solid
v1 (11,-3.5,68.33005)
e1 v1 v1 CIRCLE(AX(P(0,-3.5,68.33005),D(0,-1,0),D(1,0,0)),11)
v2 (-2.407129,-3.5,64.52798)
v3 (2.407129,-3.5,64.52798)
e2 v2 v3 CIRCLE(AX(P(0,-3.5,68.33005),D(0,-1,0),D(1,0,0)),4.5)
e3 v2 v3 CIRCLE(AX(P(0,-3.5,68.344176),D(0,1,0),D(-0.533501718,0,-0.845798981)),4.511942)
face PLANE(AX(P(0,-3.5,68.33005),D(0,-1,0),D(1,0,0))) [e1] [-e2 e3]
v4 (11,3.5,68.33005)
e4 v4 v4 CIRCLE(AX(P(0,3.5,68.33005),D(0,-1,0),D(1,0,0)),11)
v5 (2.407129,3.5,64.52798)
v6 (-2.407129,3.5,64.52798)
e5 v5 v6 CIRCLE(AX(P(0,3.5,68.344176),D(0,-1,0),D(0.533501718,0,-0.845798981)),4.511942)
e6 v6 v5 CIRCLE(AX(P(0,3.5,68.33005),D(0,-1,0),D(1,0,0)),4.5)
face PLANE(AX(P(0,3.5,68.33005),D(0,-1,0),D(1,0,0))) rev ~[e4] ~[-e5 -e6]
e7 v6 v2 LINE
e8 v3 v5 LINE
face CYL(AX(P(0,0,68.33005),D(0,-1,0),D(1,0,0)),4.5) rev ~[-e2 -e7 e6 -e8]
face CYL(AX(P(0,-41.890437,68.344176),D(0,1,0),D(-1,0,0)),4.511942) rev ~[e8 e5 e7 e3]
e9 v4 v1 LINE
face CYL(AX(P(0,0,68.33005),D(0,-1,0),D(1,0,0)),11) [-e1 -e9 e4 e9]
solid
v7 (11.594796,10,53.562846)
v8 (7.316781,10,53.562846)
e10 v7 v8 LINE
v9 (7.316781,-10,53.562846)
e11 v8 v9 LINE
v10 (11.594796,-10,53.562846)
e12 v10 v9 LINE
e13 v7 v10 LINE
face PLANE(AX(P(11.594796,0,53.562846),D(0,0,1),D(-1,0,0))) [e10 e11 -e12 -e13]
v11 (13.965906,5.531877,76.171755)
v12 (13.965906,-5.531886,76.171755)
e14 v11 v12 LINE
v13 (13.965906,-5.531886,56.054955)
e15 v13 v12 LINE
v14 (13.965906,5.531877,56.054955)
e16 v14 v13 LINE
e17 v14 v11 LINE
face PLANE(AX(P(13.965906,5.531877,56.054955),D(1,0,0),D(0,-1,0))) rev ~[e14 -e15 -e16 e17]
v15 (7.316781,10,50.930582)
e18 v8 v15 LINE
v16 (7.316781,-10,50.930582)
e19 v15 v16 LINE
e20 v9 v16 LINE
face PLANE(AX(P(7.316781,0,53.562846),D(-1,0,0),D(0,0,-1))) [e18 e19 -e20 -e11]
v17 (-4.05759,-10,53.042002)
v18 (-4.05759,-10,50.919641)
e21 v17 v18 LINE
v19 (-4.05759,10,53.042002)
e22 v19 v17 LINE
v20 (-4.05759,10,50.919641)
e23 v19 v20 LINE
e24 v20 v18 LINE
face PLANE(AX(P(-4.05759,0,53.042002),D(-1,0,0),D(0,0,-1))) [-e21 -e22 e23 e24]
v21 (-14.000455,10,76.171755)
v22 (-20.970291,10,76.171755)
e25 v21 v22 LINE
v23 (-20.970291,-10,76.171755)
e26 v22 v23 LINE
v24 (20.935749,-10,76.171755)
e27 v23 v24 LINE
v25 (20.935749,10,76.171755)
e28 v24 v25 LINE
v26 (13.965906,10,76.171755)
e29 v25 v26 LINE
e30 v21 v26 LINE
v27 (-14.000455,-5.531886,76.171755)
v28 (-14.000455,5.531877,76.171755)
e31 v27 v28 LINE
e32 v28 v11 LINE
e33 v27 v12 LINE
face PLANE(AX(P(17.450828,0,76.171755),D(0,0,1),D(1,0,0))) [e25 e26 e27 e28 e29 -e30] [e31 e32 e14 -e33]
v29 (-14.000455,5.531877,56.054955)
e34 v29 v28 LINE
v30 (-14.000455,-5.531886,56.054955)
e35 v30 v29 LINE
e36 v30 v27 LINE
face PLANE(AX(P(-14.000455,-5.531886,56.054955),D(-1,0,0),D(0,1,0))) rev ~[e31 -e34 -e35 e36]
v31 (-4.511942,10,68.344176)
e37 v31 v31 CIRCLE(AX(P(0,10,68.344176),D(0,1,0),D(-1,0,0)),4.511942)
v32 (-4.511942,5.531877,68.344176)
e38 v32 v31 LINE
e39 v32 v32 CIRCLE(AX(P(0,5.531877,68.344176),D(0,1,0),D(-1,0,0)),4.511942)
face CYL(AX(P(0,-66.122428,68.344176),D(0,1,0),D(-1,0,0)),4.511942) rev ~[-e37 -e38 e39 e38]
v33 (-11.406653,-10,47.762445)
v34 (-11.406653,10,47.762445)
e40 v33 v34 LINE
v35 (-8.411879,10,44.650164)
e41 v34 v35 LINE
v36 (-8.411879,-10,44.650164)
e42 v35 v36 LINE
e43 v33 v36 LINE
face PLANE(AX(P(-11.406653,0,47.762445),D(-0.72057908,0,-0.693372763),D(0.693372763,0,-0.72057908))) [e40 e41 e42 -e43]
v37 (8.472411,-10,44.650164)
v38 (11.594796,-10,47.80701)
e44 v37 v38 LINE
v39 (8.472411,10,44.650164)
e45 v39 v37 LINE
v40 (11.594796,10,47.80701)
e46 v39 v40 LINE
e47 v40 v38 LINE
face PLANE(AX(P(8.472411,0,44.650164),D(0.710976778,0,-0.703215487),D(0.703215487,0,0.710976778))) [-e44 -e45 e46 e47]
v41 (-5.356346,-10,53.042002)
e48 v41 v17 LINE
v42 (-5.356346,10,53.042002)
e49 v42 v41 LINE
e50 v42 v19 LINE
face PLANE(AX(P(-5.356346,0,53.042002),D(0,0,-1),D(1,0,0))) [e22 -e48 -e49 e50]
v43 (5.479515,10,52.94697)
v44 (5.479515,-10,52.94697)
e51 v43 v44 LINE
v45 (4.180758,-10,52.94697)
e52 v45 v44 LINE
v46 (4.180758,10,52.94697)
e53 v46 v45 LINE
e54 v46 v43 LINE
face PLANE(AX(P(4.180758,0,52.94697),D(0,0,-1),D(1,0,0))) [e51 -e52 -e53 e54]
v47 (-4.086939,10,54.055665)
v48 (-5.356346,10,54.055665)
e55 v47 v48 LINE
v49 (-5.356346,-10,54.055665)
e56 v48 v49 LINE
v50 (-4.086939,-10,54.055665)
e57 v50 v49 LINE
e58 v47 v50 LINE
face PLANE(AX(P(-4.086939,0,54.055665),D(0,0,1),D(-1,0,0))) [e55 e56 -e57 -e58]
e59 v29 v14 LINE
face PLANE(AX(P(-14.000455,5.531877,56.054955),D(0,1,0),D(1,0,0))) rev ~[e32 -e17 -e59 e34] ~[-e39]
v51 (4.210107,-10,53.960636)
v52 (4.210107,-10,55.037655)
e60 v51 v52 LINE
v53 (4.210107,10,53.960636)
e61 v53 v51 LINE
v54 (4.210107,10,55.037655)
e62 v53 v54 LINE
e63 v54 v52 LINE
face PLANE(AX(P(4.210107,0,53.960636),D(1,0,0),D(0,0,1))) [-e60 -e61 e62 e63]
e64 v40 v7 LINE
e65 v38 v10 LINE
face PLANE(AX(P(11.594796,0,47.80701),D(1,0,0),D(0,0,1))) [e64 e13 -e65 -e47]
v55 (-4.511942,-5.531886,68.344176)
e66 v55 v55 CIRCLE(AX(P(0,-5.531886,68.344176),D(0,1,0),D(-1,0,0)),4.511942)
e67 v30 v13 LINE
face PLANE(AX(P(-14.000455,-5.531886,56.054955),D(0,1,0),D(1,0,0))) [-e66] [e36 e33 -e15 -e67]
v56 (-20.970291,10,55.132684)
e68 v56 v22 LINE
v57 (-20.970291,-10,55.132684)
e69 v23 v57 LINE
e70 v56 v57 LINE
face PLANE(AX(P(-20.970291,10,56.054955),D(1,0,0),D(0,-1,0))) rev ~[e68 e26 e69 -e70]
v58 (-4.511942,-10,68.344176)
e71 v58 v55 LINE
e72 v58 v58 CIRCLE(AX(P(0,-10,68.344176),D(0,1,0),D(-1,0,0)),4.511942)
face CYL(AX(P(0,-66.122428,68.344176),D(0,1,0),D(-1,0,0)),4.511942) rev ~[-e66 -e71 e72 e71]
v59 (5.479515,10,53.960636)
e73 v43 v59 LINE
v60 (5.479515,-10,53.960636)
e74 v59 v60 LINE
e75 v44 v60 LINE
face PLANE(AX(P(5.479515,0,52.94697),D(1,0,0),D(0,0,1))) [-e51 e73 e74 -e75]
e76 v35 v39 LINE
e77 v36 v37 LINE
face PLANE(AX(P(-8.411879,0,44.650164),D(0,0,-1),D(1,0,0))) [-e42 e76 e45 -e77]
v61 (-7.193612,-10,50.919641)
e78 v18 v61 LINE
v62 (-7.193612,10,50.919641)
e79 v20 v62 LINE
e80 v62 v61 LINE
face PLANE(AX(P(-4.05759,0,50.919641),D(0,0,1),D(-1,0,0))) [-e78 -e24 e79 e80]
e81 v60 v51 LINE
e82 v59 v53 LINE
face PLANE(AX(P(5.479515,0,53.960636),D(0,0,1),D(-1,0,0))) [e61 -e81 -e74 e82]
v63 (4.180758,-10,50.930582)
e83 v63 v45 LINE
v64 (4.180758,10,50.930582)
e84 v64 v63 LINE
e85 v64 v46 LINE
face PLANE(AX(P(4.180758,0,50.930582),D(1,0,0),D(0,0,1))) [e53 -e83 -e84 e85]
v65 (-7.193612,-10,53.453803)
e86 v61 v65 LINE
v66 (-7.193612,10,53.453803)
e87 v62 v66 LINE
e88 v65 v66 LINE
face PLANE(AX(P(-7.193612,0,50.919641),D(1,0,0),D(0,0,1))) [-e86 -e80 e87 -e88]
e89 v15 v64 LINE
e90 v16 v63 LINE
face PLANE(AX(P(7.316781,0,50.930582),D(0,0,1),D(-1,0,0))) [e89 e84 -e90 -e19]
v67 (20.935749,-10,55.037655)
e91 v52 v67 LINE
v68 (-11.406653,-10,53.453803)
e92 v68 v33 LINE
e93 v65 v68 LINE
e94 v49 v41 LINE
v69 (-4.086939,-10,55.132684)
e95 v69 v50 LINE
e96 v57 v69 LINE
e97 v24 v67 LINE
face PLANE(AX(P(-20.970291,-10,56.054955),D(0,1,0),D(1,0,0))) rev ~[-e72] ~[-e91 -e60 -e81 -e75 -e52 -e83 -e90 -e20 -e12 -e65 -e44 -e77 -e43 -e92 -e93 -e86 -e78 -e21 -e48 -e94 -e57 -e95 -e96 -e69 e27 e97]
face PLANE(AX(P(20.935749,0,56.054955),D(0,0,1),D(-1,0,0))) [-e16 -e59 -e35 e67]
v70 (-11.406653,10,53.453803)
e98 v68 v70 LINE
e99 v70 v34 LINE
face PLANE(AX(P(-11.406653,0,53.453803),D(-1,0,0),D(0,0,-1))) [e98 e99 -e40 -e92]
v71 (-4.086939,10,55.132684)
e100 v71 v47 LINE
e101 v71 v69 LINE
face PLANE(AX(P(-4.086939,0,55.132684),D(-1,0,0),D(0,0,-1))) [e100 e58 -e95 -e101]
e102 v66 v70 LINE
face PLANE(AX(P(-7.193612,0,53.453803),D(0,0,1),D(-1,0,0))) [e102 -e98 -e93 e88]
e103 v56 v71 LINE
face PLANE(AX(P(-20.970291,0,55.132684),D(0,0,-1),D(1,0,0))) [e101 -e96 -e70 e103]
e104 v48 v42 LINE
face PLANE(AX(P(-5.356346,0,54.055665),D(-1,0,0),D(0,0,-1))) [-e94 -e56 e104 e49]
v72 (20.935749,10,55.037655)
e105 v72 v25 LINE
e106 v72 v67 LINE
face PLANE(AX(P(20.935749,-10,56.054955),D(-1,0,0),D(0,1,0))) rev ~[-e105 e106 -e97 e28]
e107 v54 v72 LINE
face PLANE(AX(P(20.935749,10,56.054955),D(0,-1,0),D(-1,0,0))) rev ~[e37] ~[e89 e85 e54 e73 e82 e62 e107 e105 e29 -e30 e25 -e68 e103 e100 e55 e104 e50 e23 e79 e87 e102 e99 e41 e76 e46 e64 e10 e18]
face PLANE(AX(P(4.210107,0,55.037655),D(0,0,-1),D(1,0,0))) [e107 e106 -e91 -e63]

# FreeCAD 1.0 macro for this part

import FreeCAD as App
import Part
import Sketcher

V = App.Vector


def add_polygon(sketch, points):
    """Adds a closed chain of lines whose ends are joined by coincident constraints."""
    first, n = sketch.GeometryCount, len(points)
    for a, b in zip(points, points[1:] + points[:1]):
        sketch.addGeometry(Part.LineSegment(App.Vector(*a, 0), App.Vector(*b, 0)), False)
    for i in range(n):
        sketch.addConstraint(Sketcher.Constraint("Coincident", first + i, 2, first + (i + 1) % n, 1))

doc = App.newDocument("Part")
body = doc.addObject("PartDesign::Body", "Body")

# Sketch on XZ plane
sketch1 = body.newObject("Sketcher::SketchObject", "Sketch")
sketch1.AttachmentSupport = (doc.getObject("XZ_Plane"), [""])
sketch1.MapMode = "FlatFace"
sketch1.addGeometry(Part.Circle(V(0, 68.3, 0), V(0, 0, 1), 11), False)
sketch1.addGeometry(Part.Circle(V(0, 68.3, 0), V(0, 0, 1), 4.5), False)
sketch1.addConstraint(Sketcher.Constraint("Coincident", 1, 3, 0, 3))
sketch1.addConstraint(Sketcher.Constraint("PointOnObject", 0, 3, -2))
sketch1.addConstraint(Sketcher.Constraint("Diameter", 0, 22.0))
sketch1.addConstraint(Sketcher.Constraint("Diameter", 1, 9.0))
sketch1.addConstraint(Sketcher.Constraint("DistanceY", -1, 1, 0, 3, 68.33005))
pad1 = body.newObject("PartDesign::Pad", "Pad")
pad1.Profile = sketch1
pad1.Length = 3.5

# Sketch on XZ plane
sketch2 = body.newObject("Sketcher::SketchObject", "Sketch001")
sketch2.AttachmentSupport = (doc.getObject("XZ_Plane"), [""])
sketch2.MapMode = "FlatFace"
sketch2.addGeometry(Part.Circle(V(0, 68.3, 0), V(0, 0, 1), 11), False)
sketch2.addGeometry(Part.Circle(V(0, 68.3, 0), V(0, 0, 1), 4.5), False)
sketch2.addConstraint(Sketcher.Constraint("Coincident", 1, 3, 0, 3))
sketch2.addConstraint(Sketcher.Constraint("PointOnObject", 0, 3, -2))
sketch2.addConstraint(Sketcher.Constraint("Diameter", 0, 22.0))
sketch2.addConstraint(Sketcher.Constraint("Diameter", 1, 9.0))
sketch2.addConstraint(Sketcher.Constraint("DistanceY", -1, 1, 0, 3, 68.33005))
pad2 = body.newObject("PartDesign::Pad", "Pad001")
pad2.Profile = sketch2
pad2.Length = 3.5
pad2.Reversed = True

# Sketch on XZ plane
sketch3 = body.newObject("Sketcher::SketchObject", "Sketch002")
sketch3.AttachmentSupport = (doc.getObject("XZ_Plane"), [""])
sketch3.MapMode = "FlatFace"
sketch3.AttachmentOffset = App.Placement(V(0, 0, 10), App.Rotation())
sketch3.addGeometry(Part.Circle(V(0, 68.3, 0), V(0, 0, 1), 4.5), False)
sketch3.addConstraint(Sketcher.Constraint("PointOnObject", 0, 3, -2))
sketch3.addConstraint(Sketcher.Constraint("Diameter", 0, 9.023883))
sketch3.addConstraint(Sketcher.Constraint("DistanceY", -1, 1, 0, 3, 68.344176))
doc.recompute()
hole = body.newObject("PartDesign::Hole", "Hole")
hole.Profile = sketch3
hole.ThreadType = "None"
hole.Diameter = 9.023883
hole.DepthType = "ThroughAll"
body2 = doc.addObject("PartDesign::Body", "Body001")

# Sketch on XZ plane
sketch4 = body2.newObject("Sketcher::SketchObject", "Sketch003")
sketch4.AttachmentSupport = (doc.getObject("XZ_Plane001"), [""])
sketch4.MapMode = "FlatFace"
add_polygon(sketch4, [(-11.4, 47.8), (-8.4, 44.7), (8.5, 44.7), (11.6, 47.8), (11.6, 53.6), (7.3, 53.6), (7.3, 50.9), (4.2, 50.9), (4.2, 52.9), (5.5, 52.9), (5.5, 54), (4.2, 54), (4.2, 55), (20.9, 55), (20.9, 56.1), (-21, 56.1), (-21, 55.1), (-4.1, 55.1), (-4.1, 54.1), (-5.4, 54.1), (-5.4, 53), (-4.1, 53), (-4.1, 50.9), (-7.2, 50.9), (-7.2, 53.5), (-11.4, 53.5)])  # lines 0-25
sketch4.addConstraint(Sketcher.Constraint("Horizontal", 1))
sketch4.addConstraint(Sketcher.Constraint("Vertical", 3))
sketch4.addConstraint(Sketcher.Constraint("Horizontal", 4))
sketch4.addConstraint(Sketcher.Constraint("Vertical", 5))
sketch4.addConstraint(Sketcher.Constraint("Horizontal", 6))
sketch4.addConstraint(Sketcher.Constraint("Vertical", 7))
sketch4.addConstraint(Sketcher.Constraint("Horizontal", 8))
sketch4.addConstraint(Sketcher.Constraint("Vertical", 9))
sketch4.addConstraint(Sketcher.Constraint("Horizontal", 10))
sketch4.addConstraint(Sketcher.Constraint("Vertical", 11))
sketch4.addConstraint(Sketcher.Constraint("Horizontal", 12))
sketch4.addConstraint(Sketcher.Constraint("Vertical", 13))
sketch4.addConstraint(Sketcher.Constraint("Horizontal", 14))
sketch4.addConstraint(Sketcher.Constraint("Vertical", 15))
sketch4.addConstraint(Sketcher.Constraint("Horizontal", 16))
sketch4.addConstraint(Sketcher.Constraint("Vertical", 17))
sketch4.addConstraint(Sketcher.Constraint("Horizontal", 18))
sketch4.addConstraint(Sketcher.Constraint("Vertical", 19))
sketch4.addConstraint(Sketcher.Constraint("Horizontal", 20))
sketch4.addConstraint(Sketcher.Constraint("Vertical", 21))
sketch4.addConstraint(Sketcher.Constraint("Horizontal", 22))
sketch4.addConstraint(Sketcher.Constraint("Vertical", 23))
sketch4.addConstraint(Sketcher.Constraint("Horizontal", 24))
sketch4.addConstraint(Sketcher.Constraint("Vertical", 25))
sketch4.addConstraint(Sketcher.Constraint("Equal", 10, 18))
sketch4.addConstraint(Sketcher.Constraint("Equal", 8, 20))
sketch4.addConstraint(Sketcher.Constraint("Equal", 6, 22))
sketch4.addConstraint(Sketcher.Constraint("Equal", 11, 17))
sketch4.addConstraint(Sketcher.Constraint("DistanceY", 13, 1, 13, 2, 1.0173))
sketch4.addConstraint(Sketcher.Constraint("DistanceX", 1, 1, 1, 2, 16.88429))
sketch4.addConstraint(Sketcher.Constraint("DistanceX", 14, 2, 14, 1, 41.90604))
sketch4.addConstraint(Sketcher.Constraint("DistanceX", 24, 2, 24, 1, 4.213041))
sketch4.addConstraint(Sketcher.Constraint("DistanceY", 11, 1, 11, 2, 1.077019))
sketch4.addConstraint(Sketcher.Constraint("DistanceY", 15, 2, 15, 1, 0.922271))
sketch4.addConstraint(Sketcher.Constraint("DistanceY", 21, 2, 21, 1, 2.122361))
sketch4.addConstraint(Sketcher.Constraint("DistanceX", 14, 2, 11, 2, 25.180398))
sketch4.addConstraint(Sketcher.Constraint("DistanceY", 6, 2, 16, 2, 4.202102))
sketch4.addConstraint(Sketcher.Constraint("DistanceY", 19, 2, 23, 2, 0.411801))
sketch4.addConstraint(Sketcher.Constraint("Distance", 0, 4.31914))
sketch4.addConstraint(Sketcher.Constraint("DistanceX", 4, 2, 4, 1, 4.278015))
sketch4.addConstraint(Sketcher.Constraint("DistanceX", 6, 2, 6, 1, 3.136023))
sketch4.addConstraint(Sketcher.Constraint("DistanceX", 8, 1, 8, 2, 1.298757))
sketch4.addConstraint(Sketcher.Constraint("DistanceX", 10, 2, 10, 1, 1.269408))
sketch4.addConstraint(Sketcher.Constraint("DistanceX", 16, 1, 16, 2, 16.883352))
sketch4.addConstraint(Sketcher.Constraint("DistanceY", 3, 1, 3, 2, 5.755836))
sketch4.addConstraint(Sketcher.Constraint("DistanceY", 5, 2, 5, 1, 2.632264))
sketch4.addConstraint(Sketcher.Constraint("DistanceY", 7, 1, 7, 2, 2.016388))
sketch4.addConstraint(Sketcher.Constraint("DistanceY", 19, 2, 19, 1, 1.013663))
sketch4.addConstraint(Sketcher.Constraint("DistanceY", 25, 2, 25, 1, 5.691358))
sketch4.addConstraint(Sketcher.Constraint("DistanceX", 0, 2, -1, 1, 8.411879))
sketch4.addConstraint(Sketcher.Constraint("DistanceY", -1, 1, 2, 2, 47.80701))
sketch4.addConstraint(Sketcher.Constraint("DistanceX", -1, 1, 4, 2, 7.316781))
pad3 = body2.newObject("PartDesign::Pad", "Pad002")
pad3.Profile = sketch4
pad3.Length = 10

# Sketch on XZ plane
sketch5 = body2.newObject("Sketcher::SketchObject", "Sketch004")
sketch5.AttachmentSupport = (doc.getObject("XZ_Plane001"), [""])
sketch5.MapMode = "FlatFace"
add_polygon(sketch5, [(-11.4, 47.8), (-8.4, 44.7), (8.5, 44.7), (11.6, 47.8), (11.6, 53.6), (7.3, 53.6), (7.3, 50.9), (4.2, 50.9), (4.2, 52.9), (5.5, 52.9), (5.5, 54), (4.2, 54), (4.2, 55), (20.9, 55), (20.9, 56.1), (-21, 56.1), (-21, 55.1), (-4.1, 55.1), (-4.1, 54.1), (-5.4, 54.1), (-5.4, 53), (-4.1, 53), (-4.1, 50.9), (-7.2, 50.9), (-7.2, 53.5), (-11.4, 53.5)])  # lines 0-25
sketch5.addConstraint(Sketcher.Constraint("Horizontal", 1))
sketch5.addConstraint(Sketcher.Constraint("Vertical", 3))
sketch5.addConstraint(Sketcher.Constraint("Horizontal", 4))
sketch5.addConstraint(Sketcher.Constraint("Vertical", 5))
sketch5.addConstraint(Sketcher.Constraint("Horizontal", 6))
sketch5.addConstraint(Sketcher.Constraint("Vertical", 7))
sketch5.addConstraint(Sketcher.Constraint("Horizontal", 8))
sketch5.addConstraint(Sketcher.Constraint("Vertical", 9))
sketch5.addConstraint(Sketcher.Constraint("Horizontal", 10))
sketch5.addConstraint(Sketcher.Constraint("Vertical", 11))
sketch5.addConstraint(Sketcher.Constraint("Horizontal", 12))
sketch5.addConstraint(Sketcher.Constraint("Vertical", 13))
sketch5.addConstraint(Sketcher.Constraint("Horizontal", 14))
sketch5.addConstraint(Sketcher.Constraint("Vertical", 15))
sketch5.addConstraint(Sketcher.Constraint("Horizontal", 16))
sketch5.addConstraint(Sketcher.Constraint("Vertical", 17))
sketch5.addConstraint(Sketcher.Constraint("Horizontal", 18))
sketch5.addConstraint(Sketcher.Constraint("Vertical", 19))
sketch5.addConstraint(Sketcher.Constraint("Horizontal", 20))
sketch5.addConstraint(Sketcher.Constraint("Vertical", 21))
sketch5.addConstraint(Sketcher.Constraint("Horizontal", 22))
sketch5.addConstraint(Sketcher.Constraint("Vertical", 23))
sketch5.addConstraint(Sketcher.Constraint("Horizontal", 24))
sketch5.addConstraint(Sketcher.Constraint("Vertical", 25))
sketch5.addConstraint(Sketcher.Constraint("Equal", 10, 18))
sketch5.addConstraint(Sketcher.Constraint("Equal", 8, 20))
sketch5.addConstraint(Sketcher.Constraint("Equal", 6, 22))
sketch5.addConstraint(Sketcher.Constraint("Equal", 11, 17))
sketch5.addConstraint(Sketcher.Constraint("DistanceY", 13, 1, 13, 2, 1.0173))
sketch5.addConstraint(Sketcher.Constraint("DistanceX", 1, 1, 1, 2, 16.88429))
sketch5.addConstraint(Sketcher.Constraint("DistanceX", 14, 2, 14, 1, 41.90604))
sketch5.addConstraint(Sketcher.Constraint("DistanceX", 24, 2, 24, 1, 4.213041))
sketch5.addConstraint(Sketcher.Constraint("DistanceY", 11, 1, 11, 2, 1.077019))
sketch5.addConstraint(Sketcher.Constraint("DistanceY", 15, 2, 15, 1, 0.922271))
sketch5.addConstraint(Sketcher.Constraint("DistanceY", 21, 2, 21, 1, 2.122361))
sketch5.addConstraint(Sketcher.Constraint("DistanceX", 14, 2, 11, 2, 25.180398))
sketch5.addConstraint(Sketcher.Constraint("DistanceY", 6, 2, 16, 2, 4.202102))
sketch5.addConstraint(Sketcher.Constraint("DistanceY", 19, 2, 23, 2, 0.411801))
sketch5.addConstraint(Sketcher.Constraint("Distance", 0, 4.31914))
sketch5.addConstraint(Sketcher.Constraint("DistanceX", 4, 2, 4, 1, 4.278015))
sketch5.addConstraint(Sketcher.Constraint("DistanceX", 6, 2, 6, 1, 3.136023))
sketch5.addConstraint(Sketcher.Constraint("DistanceX", 8, 1, 8, 2, 1.298757))
sketch5.addConstraint(Sketcher.Constraint("DistanceX", 10, 2, 10, 1, 1.269408))
sketch5.addConstraint(Sketcher.Constraint("DistanceX", 16, 1, 16, 2, 16.883352))
sketch5.addConstraint(Sketcher.Constraint("DistanceY", 3, 1, 3, 2, 5.755836))
sketch5.addConstraint(Sketcher.Constraint("DistanceY", 5, 2, 5, 1, 2.632264))
sketch5.addConstraint(Sketcher.Constraint("DistanceY", 7, 1, 7, 2, 2.016388))
sketch5.addConstraint(Sketcher.Constraint("DistanceY", 19, 2, 19, 1, 1.013663))
sketch5.addConstraint(Sketcher.Constraint("DistanceY", 25, 2, 25, 1, 5.691358))
sketch5.addConstraint(Sketcher.Constraint("DistanceX", 0, 2, -1, 1, 8.411879))
sketch5.addConstraint(Sketcher.Constraint("DistanceY", -1, 1, 2, 2, 47.80701))
sketch5.addConstraint(Sketcher.Constraint("DistanceX", -1, 1, 4, 2, 7.316781))
pad4 = body2.newObject("PartDesign::Pad", "Pad003")
pad4.Profile = sketch5
pad4.Length = 10
pad4.Reversed = True

# Sketch on XY plane
sketch6 = body2.newObject("Sketcher::SketchObject", "Sketch005")
sketch6.AttachmentSupport = (doc.getObject("XY_Plane001"), [""])
sketch6.MapMode = "FlatFace"
sketch6.AttachmentOffset = App.Placement(V(0, 0, 56.054955), App.Rotation())
add_polygon(sketch6, [(21, -10), (21, 10), (14, 10), (-14, 10), (-21, 10), (-21, -10)])  # lines 0-5
add_polygon(sketch6, [(-14, -6), (-14, 6), (14, 6), (14, -6)])  # lines 6-9
sketch6.addConstraint(Sketcher.Constraint("Vertical", 0))
sketch6.addConstraint(Sketcher.Constraint("Horizontal", 1))
sketch6.addConstraint(Sketcher.Constraint("Horizontal", 2))
sketch6.addConstraint(Sketcher.Constraint("Horizontal", 3))
sketch6.addConstraint(Sketcher.Constraint("Vertical", 4))
sketch6.addConstraint(Sketcher.Constraint("Horizontal", 5))
sketch6.addConstraint(Sketcher.Constraint("Vertical", 6))
sketch6.addConstraint(Sketcher.Constraint("Horizontal", 7))
sketch6.addConstraint(Sketcher.Constraint("Vertical", 8))
sketch6.addConstraint(Sketcher.Constraint("Horizontal", 9))
sketch6.addConstraint(Sketcher.Constraint("Vertical", 2, 2, 6, 2))
sketch6.addConstraint(Sketcher.Constraint("Vertical", 1, 2, 7, 2))
sketch6.addConstraint(Sketcher.Constraint("DistanceY", 0, 1, 0, 2, 20.0))
sketch6.addConstraint(Sketcher.Constraint("DistanceY", -1, 1, 0, 2, 10.0))
sketch6.addConstraint(Sketcher.Constraint("DistanceX", 2, 2, 2, 1, 27.966361))
sketch6.addConstraint(Sketcher.Constraint("DistanceX", 5, 1, 5, 2, 41.90604))
sketch6.addConstraint(Sketcher.Constraint("DistanceX", 1, 2, 1, 1, 6.969843))
sketch6.addConstraint(Sketcher.Constraint("DistanceY", 6, 1, 6, 2, 11.063763))
sketch6.addConstraint(Sketcher.Constraint("DistanceX", -1, 1, 0, 2, 20.935749))
sketch6.addConstraint(Sketcher.Constraint("DistanceY", -1, 1, 6, 2, 5.531877))
pad5 = body2.newObject("PartDesign::Pad", "Pad004")
pad5.Profile = sketch6
pad5.Length = 20.1168

# Sketch on XZ plane
sketch7 = body2.newObject("Sketcher::SketchObject", "Sketch006")
sketch7.AttachmentSupport = (doc.getObject("XZ_Plane001"), [""])
sketch7.MapMode = "FlatFace"
sketch7.AttachmentOffset = App.Placement(V(0, 0, 10), App.Rotation())
sketch7.addGeometry(Part.Circle(V(0, 68.3, 0), V(0, 0, 1), 4.5), False)
sketch7.addConstraint(Sketcher.Constraint("PointOnObject", 0, 3, -2))
sketch7.addConstraint(Sketcher.Constraint("Diameter", 0, 9.023883))
sketch7.addConstraint(Sketcher.Constraint("DistanceY", -1, 1, 0, 3, 68.344176))
doc.recompute()
hole2 = body2.newObject("PartDesign::Hole", "Hole001")
hole2.Profile = sketch7
hole2.ThreadType = "None"
hole2.Diameter = 9.023883
hole2.DepthType = "ThroughAll"

doc.recompute()
